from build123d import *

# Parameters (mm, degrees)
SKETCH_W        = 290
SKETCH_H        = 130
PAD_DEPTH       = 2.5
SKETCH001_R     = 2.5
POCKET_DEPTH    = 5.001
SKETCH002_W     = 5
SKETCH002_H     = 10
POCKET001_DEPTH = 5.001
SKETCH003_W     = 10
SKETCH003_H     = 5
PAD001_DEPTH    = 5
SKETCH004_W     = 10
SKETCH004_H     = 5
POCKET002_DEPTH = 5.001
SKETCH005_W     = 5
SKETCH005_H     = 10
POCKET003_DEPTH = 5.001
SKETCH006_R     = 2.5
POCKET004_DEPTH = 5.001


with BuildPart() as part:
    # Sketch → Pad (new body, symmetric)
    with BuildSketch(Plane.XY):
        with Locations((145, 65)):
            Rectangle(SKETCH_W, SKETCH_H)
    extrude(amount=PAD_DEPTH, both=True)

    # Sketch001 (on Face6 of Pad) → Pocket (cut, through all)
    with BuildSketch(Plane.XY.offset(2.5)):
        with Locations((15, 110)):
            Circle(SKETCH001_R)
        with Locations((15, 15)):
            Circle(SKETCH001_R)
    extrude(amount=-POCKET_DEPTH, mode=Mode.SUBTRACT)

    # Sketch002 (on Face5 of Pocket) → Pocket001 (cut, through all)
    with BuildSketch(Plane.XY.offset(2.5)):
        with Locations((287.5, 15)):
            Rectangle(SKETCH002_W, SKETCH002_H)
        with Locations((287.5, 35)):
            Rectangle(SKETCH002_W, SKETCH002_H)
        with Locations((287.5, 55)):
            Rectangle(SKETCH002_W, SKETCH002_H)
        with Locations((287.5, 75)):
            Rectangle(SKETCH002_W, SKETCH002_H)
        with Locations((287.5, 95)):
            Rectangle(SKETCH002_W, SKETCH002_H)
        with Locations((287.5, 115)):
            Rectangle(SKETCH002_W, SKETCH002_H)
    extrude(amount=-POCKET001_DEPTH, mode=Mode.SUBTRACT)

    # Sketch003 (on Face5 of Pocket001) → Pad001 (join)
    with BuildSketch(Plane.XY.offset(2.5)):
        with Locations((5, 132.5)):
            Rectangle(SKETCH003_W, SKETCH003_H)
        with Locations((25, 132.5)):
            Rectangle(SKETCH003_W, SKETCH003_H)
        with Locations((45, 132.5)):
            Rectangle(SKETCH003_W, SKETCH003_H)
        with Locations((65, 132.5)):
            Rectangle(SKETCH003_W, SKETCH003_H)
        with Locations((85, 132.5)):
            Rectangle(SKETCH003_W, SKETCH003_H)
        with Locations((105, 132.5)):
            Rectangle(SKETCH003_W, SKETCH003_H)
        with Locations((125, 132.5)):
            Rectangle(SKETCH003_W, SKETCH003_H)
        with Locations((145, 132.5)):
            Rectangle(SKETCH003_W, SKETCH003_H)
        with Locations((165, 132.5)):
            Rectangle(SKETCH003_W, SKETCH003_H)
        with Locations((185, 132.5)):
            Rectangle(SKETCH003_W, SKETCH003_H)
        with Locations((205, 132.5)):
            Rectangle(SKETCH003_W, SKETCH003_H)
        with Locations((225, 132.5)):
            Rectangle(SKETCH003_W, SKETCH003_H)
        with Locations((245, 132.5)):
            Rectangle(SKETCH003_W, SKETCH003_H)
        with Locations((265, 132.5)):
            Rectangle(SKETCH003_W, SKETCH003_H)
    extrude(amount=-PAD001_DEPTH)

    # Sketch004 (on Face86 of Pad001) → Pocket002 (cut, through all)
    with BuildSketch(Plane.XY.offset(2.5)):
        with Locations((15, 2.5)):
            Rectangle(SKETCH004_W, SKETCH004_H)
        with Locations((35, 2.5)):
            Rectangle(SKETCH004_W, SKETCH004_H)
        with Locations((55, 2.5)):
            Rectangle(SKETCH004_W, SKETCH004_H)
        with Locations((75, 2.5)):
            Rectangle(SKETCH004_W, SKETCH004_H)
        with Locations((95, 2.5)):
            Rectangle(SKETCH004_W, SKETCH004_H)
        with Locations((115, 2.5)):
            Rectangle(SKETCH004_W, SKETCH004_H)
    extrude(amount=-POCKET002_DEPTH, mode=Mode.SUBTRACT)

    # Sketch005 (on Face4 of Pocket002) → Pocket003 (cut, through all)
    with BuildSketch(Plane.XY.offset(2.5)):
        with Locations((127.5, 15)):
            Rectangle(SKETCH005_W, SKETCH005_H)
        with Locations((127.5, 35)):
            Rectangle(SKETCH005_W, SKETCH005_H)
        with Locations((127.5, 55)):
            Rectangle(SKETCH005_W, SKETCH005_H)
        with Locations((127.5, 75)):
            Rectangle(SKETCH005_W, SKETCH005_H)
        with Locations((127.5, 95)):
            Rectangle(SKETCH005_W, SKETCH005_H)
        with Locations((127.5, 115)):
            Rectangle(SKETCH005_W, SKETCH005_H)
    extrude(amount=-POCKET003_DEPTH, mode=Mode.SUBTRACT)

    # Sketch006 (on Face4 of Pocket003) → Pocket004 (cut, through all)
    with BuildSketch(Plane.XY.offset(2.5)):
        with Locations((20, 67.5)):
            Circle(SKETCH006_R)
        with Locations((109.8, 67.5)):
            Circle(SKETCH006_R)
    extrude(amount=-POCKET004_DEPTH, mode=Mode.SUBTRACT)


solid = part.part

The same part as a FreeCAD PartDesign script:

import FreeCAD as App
import Part
import Sketcher
from FreeCAD import Vector
Q = App.Units.Quantity


def add_polygon(sketch, points):
    """Adds a closed chain of lines whose ends are joined by coincident constraints."""
    first, n = sketch.GeometryCount, len(points)
    for a, b in zip(points, points[1:] + points[:1]):
        sketch.addGeometry(Part.LineSegment(App.Vector(*a, 0), App.Vector(*b, 0)), False)
    for i in range(n):
        sketch.addConstraint(Sketcher.Constraint("Coincident", first + i, 2, first + (i + 1) % n, 1))

doc = App.newDocument("Part")
body = doc.addObject("PartDesign::Body", "Body")

sketch1 = body.newObject("Sketcher::SketchObject", "Sketch")
sketch1.AttachmentSupport = (doc.getObject("XY_Plane"), [""])
sketch1.MapMode = "FlatFace"
add_polygon(sketch1, [(0, 130), (0, 0), (290, 0), (290, 130)])
sketch1.addConstraint([
    Sketcher.Constraint("Vertical", 0),
    Sketcher.Constraint("Horizontal", 1),
    Sketcher.Constraint("Vertical", 2),
    Sketcher.Constraint("Horizontal", 3),
    Sketcher.Constraint("Coincident", 0, 2, -1, 1),
    Sketcher.Constraint("DistanceX", 1, 1, 1, 2, Q("290 mm")),
    Sketcher.Constraint("DistanceY", 0, 2, 0, 1, Q("130 mm")),
])
pad1 = body.newObject("PartDesign::Pad", "Pad")
pad1.Profile = sketch1
pad1.Length = 5
pad1.Midplane = True

sketch2 = body.newObject("Sketcher::SketchObject", "Sketch001")
sketch2.AttachmentSupport = (doc.getObject("XY_Plane"), [""])
sketch2.MapMode = "FlatFace"
sketch2.AttachmentOffset = App.Placement(Vector(0, 0, 2.5), App.Rotation())
sketch2.addGeometry([
    Part.Circle(Vector(15, 110, 0), Vector(0, 0, 1), 2.5),
    Part.Circle(Vector(15, 15, 0), Vector(0, 0, 1), 2.5),
], False)
sketch2.addConstraint([
    Sketcher.Constraint("Equal", 0, 1),
    Sketcher.Constraint("Vertical", 0, 3, 1, 3),
    Sketcher.Constraint("Diameter", 0, Q("5 mm")),
    Sketcher.Constraint("DistanceX", -1, 1, 0, 3, Q("15 mm")),
    Sketcher.Constraint("DistanceY", -1, 1, 0, 3, Q("110 mm")),
    Sketcher.Constraint("DistanceY", -1, 1, 1, 3, Q("15 mm")),
])
pocket1 = body.newObject("PartDesign::Pocket", "Pocket")
pocket1.Profile = sketch2
pocket1.Type = "ThroughAll"

sketch3 = body.newObject("Sketcher::SketchObject", "Sketch002")
sketch3.AttachmentSupport = (doc.getObject("XY_Plane"), [""])
sketch3.MapMode = "FlatFace"
sketch3.AttachmentOffset = App.Placement(Vector(0, 0, 2.5), App.Rotation())
add_polygon(sketch3, [(285, 20), (285, 10), (290, 10), (290, 20)])
add_polygon(sketch3, [(285, 40), (285, 30), (290, 30), (290, 40)])
add_polygon(sketch3, [(285, 60), (285, 50), (290, 50), (290, 60)])
add_polygon(sketch3, [(285, 80), (285, 70), (290, 70), (290, 80)])
add_polygon(sketch3, [(285, 100), (285, 90), (290, 90), (290, 100)])
add_polygon(sketch3, [(285, 120), (285, 110), (290, 110), (290, 120)])
sketch3.addConstraint([
    Sketcher.Constraint("Vertical", 0),
    Sketcher.Constraint("Horizontal", 1),
    Sketcher.Constraint("Vertical", 2),
    Sketcher.Constraint("Horizontal", 3),
    Sketcher.Constraint("Vertical", 4),
    Sketcher.Constraint("Horizontal", 5),
    Sketcher.Constraint("Vertical", 6),
    Sketcher.Constraint("Horizontal", 7),
    Sketcher.Constraint("Vertical", 8),
    Sketcher.Constraint("Horizontal", 9),
    Sketcher.Constraint("Vertical", 10),
    Sketcher.Constraint("Horizontal", 11),
    Sketcher.Constraint("Vertical", 12),
    Sketcher.Constraint("Horizontal", 13),
    Sketcher.Constraint("Vertical", 14),
    Sketcher.Constraint("Horizontal", 15),
    Sketcher.Constraint("Vertical", 16),
    Sketcher.Constraint("Horizontal", 17),
    Sketcher.Constraint("Vertical", 18),
    Sketcher.Constraint("Horizontal", 19),
    Sketcher.Constraint("Vertical", 20),
    Sketcher.Constraint("Horizontal", 21),
    Sketcher.Constraint("Vertical", 22),
    Sketcher.Constraint("Horizontal", 23),
    Sketcher.Constraint("Vertical", 3, 2, 4, 2),
    Sketcher.Constraint("Vertical", 2, 2, 5, 2),
    Sketcher.Constraint("Vertical", 7, 2, 8, 2),
    Sketcher.Constraint("Vertical", 6, 2, 9, 2),
    Sketcher.Constraint("Vertical", 11, 2, 12, 2),
    Sketcher.Constraint("Vertical", 10, 2, 13, 2),
    Sketcher.Constraint("Vertical", 15, 2, 16, 2),
    Sketcher.Constraint("Vertical", 14, 2, 17, 2),
    Sketcher.Constraint("Vertical", 19, 2, 20, 2),
    Sketcher.Constraint("Vertical", 18, 2, 21, 2),
    Sketcher.Constraint("Equal", 2, 4),
    Sketcher.Constraint("Equal", 6, 8),
    Sketcher.Constraint("Equal", 10, 12),
    Sketcher.Constraint("Equal", 14, 16),
    Sketcher.Constraint("Equal", 18, 20),
    Sketcher.Constraint("DistanceX", 1, 1, 1, 2, Q("5 mm")),
    Sketcher.Constraint("DistanceY", 0, 2, 0, 1, Q("10 mm")),
    Sketcher.Constraint("DistanceX", -1, 1, 0, 2, Q("285 mm")),
    Sketcher.Constraint("DistanceY", -1, 1, 0, 2, Q("10 mm")),
    Sketcher.Constraint("DistanceY", -1, 1, 4, 2, Q("30 mm")),
    Sketcher.Constraint("DistanceY", -1, 1, 8, 2, Q("50 mm")),
    Sketcher.Constraint("DistanceY", -1, 1, 12, 2, Q("70 mm")),
    Sketcher.Constraint("DistanceY", -1, 1, 16, 2, Q("90 mm")),
    Sketcher.Constraint("DistanceY", -1, 1, 20, 2, Q("110 mm")),
])
pocket2 = body.newObject("PartDesign::Pocket", "Pocket001")
pocket2.Profile = sketch3
pocket2.Type = "ThroughAll"

sketch4 = body.newObject("Sketcher::SketchObject", "Sketch003")
sketch4.AttachmentSupport = (doc.getObject("XY_Plane"), [""])
sketch4.MapMode = "FlatFace"
sketch4.AttachmentOffset = App.Placement(Vector(0, 0, 2.5), App.Rotation())
add_polygon(sketch4, [(0, 135), (0, 130), (10, 130), (10, 135)])
add_polygon(sketch4, [(20, 135), (20, 130), (30, 130), (30, 135)])
add_polygon(sketch4, [(40, 135), (40, 130), (50, 130), (50, 135)])
add_polygon(sketch4, [(60, 135), (60, 130), (70, 130), (70, 135)])
add_polygon(sketch4, [(80, 135), (80, 130), (90, 130), (90, 135)])
add_polygon(sketch4, [(100, 135), (100, 130), (110, 130), (110, 135)])
add_polygon(sketch4, [(120, 135), (120, 130), (130, 130), (130, 135)])
add_polygon(sketch4, [(140, 135), (140, 130), (150, 130), (150, 135)])
add_polygon(sketch4, [(160, 135), (160, 130), (170, 130), (170, 135)])
add_polygon(sketch4, [(180, 135), (180, 130), (190, 130), (190, 135)])
add_polygon(sketch4, [(200, 135), (200, 130), (210, 130), (210, 135)])
add_polygon(sketch4, [(220, 135), (220, 130), (230, 130), (230, 135)])
add_polygon(sketch4, [(240, 135), (240, 130), (250, 130), (250, 135)])
add_polygon(sketch4, [(260, 135), (260, 130), (270, 130), (270, 135)])
sketch4.addConstraint([
    Sketcher.Constraint("Vertical", 0),
    Sketcher.Constraint("Horizontal", 1),
    Sketcher.Constraint("Vertical", 2),
    Sketcher.Constraint("Horizontal", 3),
    Sketcher.Constraint("Vertical", 4),
    Sketcher.Constraint("Horizontal", 5),
    Sketcher.Constraint("Vertical", 6),
    Sketcher.Constraint("Horizontal", 7),
    Sketcher.Constraint("Vertical", 8),
    Sketcher.Constraint("Horizontal", 9),
    Sketcher.Constraint("Vertical", 10),
    Sketcher.Constraint("Horizontal", 11),
    Sketcher.Constraint("Vertical", 12),
    Sketcher.Constraint("Horizontal", 13),
    Sketcher.Constraint("Vertical", 14),
    Sketcher.Constraint("Horizontal", 15),
    Sketcher.Constraint("Vertical", 16),
    Sketcher.Constraint("Horizontal", 17),
    Sketcher.Constraint("Vertical", 18),
    Sketcher.Constraint("Horizontal", 19),
    Sketcher.Constraint("Vertical", 20),
    Sketcher.Constraint("Horizontal", 21),
    Sketcher.Constraint("Vertical", 22),
    Sketcher.Constraint("Horizontal", 23),
    Sketcher.Constraint("Vertical", 24),
    Sketcher.Constraint("Horizontal", 25),
    Sketcher.Constraint("Vertical", 26),
    Sketcher.Constraint("Horizontal", 27),
    Sketcher.Constraint("Vertical", 28),
    Sketcher.Constraint("Horizontal", 29),
    Sketcher.Constraint("Vertical", 30),
    Sketcher.Constraint("Horizontal", 31),
    Sketcher.Constraint("Vertical", 32),
    Sketcher.Constraint("Horizontal", 33),
    Sketcher.Constraint("Vertical", 34),
    Sketcher.Constraint("Horizontal", 35),
    Sketcher.Constraint("Vertical", 36),
    Sketcher.Constraint("Horizontal", 37),
    Sketcher.Constraint("Vertical", 38),
    Sketcher.Constraint("Horizontal", 39),
    Sketcher.Constraint("Vertical", 40),
    Sketcher.Constraint("Horizontal", 41),
    Sketcher.Constraint("Vertical", 42),
    Sketcher.Constraint("Horizontal", 43),
    Sketcher.Constraint("Vertical", 44),
    Sketcher.Constraint("Horizontal", 45),
    Sketcher.Constraint("Vertical", 46),
    Sketcher.Constraint("Horizontal", 47),
    Sketcher.Constraint("Vertical", 48),
    Sketcher.Constraint("Horizontal", 49),
    Sketcher.Constraint("Vertical", 50),
    Sketcher.Constraint("Horizontal", 51),
    Sketcher.Constraint("Vertical", 52),
    Sketcher.Constraint("Horizontal", 53),
    Sketcher.Constraint("Vertical", 54),
    Sketcher.Constraint("Horizontal", 55),
    Sketcher.Constraint("PointOnObject", 0, 2, -2),
    Sketcher.Constraint("Horizontal", 1, 2, 4, 2),
    Sketcher.Constraint("Horizontal", 3, 2, 6, 2),
    Sketcher.Constraint("Horizontal", 5, 2, 8, 2),
    Sketcher.Constraint("Horizontal", 7, 2, 10, 2),
    Sketcher.Constraint("Horizontal", 9, 2, 12, 2),
    Sketcher.Constraint("Horizontal", 11, 2, 14, 2),
    Sketcher.Constraint("Horizontal", 13, 2, 16, 2),
    Sketcher.Constraint("Horizontal", 15, 2, 18, 2),
    Sketcher.Constraint("Horizontal", 17, 2, 20, 2),
    Sketcher.Constraint("Horizontal", 19, 2, 22, 2),
    Sketcher.Constraint("Horizontal", 21, 2, 24, 2),
    Sketcher.Constraint("Horizontal", 23, 2, 26, 2),
    Sketcher.Constraint("Horizontal", 25, 2, 28, 2),
    Sketcher.Constraint("Horizontal", 27, 2, 30, 2),
    Sketcher.Constraint("Horizontal", 29, 2, 32, 2),
    Sketcher.Constraint("Horizontal", 31, 2, 34, 2),
    Sketcher.Constraint("Horizontal", 33, 2, 36, 2),
    Sketcher.Constraint("Horizontal", 35, 2, 38, 2),
    Sketcher.Constraint("Horizontal", 37, 2, 40, 2),
    Sketcher.Constraint("Horizontal", 39, 2, 42, 2),
    Sketcher.Constraint("Horizontal", 41, 2, 44, 2),
    Sketcher.Constraint("Horizontal", 43, 2, 46, 2),
    Sketcher.Constraint("Horizontal", 45, 2, 48, 2),
    Sketcher.Constraint("Horizontal", 47, 2, 50, 2),
    Sketcher.Constraint("Horizontal", 49, 2, 52, 2),
    Sketcher.Constraint("Horizontal", 51, 2, 54, 2),
    Sketcher.Constraint("Equal", 3, 5),
    Sketcher.Constraint("Equal", 7, 9),
    Sketcher.Constraint("Equal", 11, 13),
    Sketcher.Constraint("Equal", 15, 17),
    Sketcher.Constraint("Equal", 19, 21),
    Sketcher.Constraint("Equal", 23, 25),
    Sketcher.Constraint("Equal", 27, 29),
    Sketcher.Constraint("Equal", 31, 33),
    Sketcher.Constraint("Equal", 35, 37),
    Sketcher.Constraint("Equal", 39, 41),
    Sketcher.Constraint("Equal", 43, 45),
    Sketcher.Constraint("Equal", 47, 49),
    Sketcher.Constraint("Equal", 51, 53),
    Sketcher.Constraint("DistanceX", 1, 1, 1, 2, Q("10 mm")),
    Sketcher.Constraint("DistanceY", 0, 2, 0, 1, Q("5 mm")),
    Sketcher.Constraint("DistanceY", -1, 1, 0, 2, Q("130 mm")),
    Sketcher.Constraint("DistanceX", -1, 1, 4, 2, Q("20 mm")),
    Sketcher.Constraint("DistanceX", -1, 1, 8, 2, Q("40 mm")),
    Sketcher.Constraint("DistanceX", -1, 1, 12, 2, Q("60 mm")),
    Sketcher.Constraint("DistanceX", -1, 1, 16, 2, Q("80 mm")),
    Sketcher.Constraint("DistanceX", -1, 1, 20, 2, Q("100 mm")),
    Sketcher.Constraint("DistanceX", -1, 1, 24, 2, Q("120 mm")),
    Sketcher.Constraint("DistanceX", -1, 1, 28, 2, Q("140 mm")),
    Sketcher.Constraint("DistanceX", -1, 1, 32, 2, Q("160 mm")),
    Sketcher.Constraint("DistanceX", -1, 1, 36, 2, Q("180 mm")),
    Sketcher.Constraint("DistanceX", -1, 1, 40, 2, Q("200 mm")),
    Sketcher.Constraint("DistanceX", -1, 1, 44, 2, Q("220 mm")),
    Sketcher.Constraint("DistanceX", -1, 1, 48, 2, Q("240 mm")),
    Sketcher.Constraint("DistanceX", -1, 1, 52, 2, Q("260 mm")),
])
pad2 = body.newObject("PartDesign::Pad", "Pad001")
pad2.Profile = sketch4
pad2.Length = 5
pad2.Reversed = True

sketch5 = body.newObject("Sketcher::SketchObject", "Sketch004")
sketch5.AttachmentSupport = (doc.getObject("XY_Plane"), [""])
sketch5.MapMode = "FlatFace"
sketch5.AttachmentOffset = App.Placement(Vector(0, 0, 2.5), App.Rotation())
add_polygon(sketch5, [(10, 5), (10, 0), (20, 0), (20, 5)])
add_polygon(sketch5, [(30, 5), (30, 0), (40, 0), (40, 5)])
add_polygon(sketch5, [(50, 5), (50, 0), (60, 0), (60, 5)])
add_polygon(sketch5, [(70, 5), (70, 0), (80, 0), (80, 5)])
add_polygon(sketch5, [(90, 5), (90, 0), (100, 0), (100, 5)])
add_polygon(sketch5, [(110, 5), (110, 0), (120, 0), (120, 5)])
sketch5.addConstraint([
    Sketcher.Constraint("Vertical", 0),
    Sketcher.Constraint("Horizontal", 1),
    Sketcher.Constraint("Vertical", 2),
    Sketcher.Constraint("Horizontal", 3),
    Sketcher.Constraint("Vertical", 4),
    Sketcher.Constraint("Horizontal", 5),
    Sketcher.Constraint("Vertical", 6),
    Sketcher.Constraint("Horizontal", 7),
    Sketcher.Constraint("Vertical", 8),
    Sketcher.Constraint("Horizontal", 9),
    Sketcher.Constraint("Vertical", 10),
    Sketcher.Constraint("Horizontal", 11),
    Sketcher.Constraint("Vertical", 12),
    Sketcher.Constraint("Horizontal", 13),
    Sketcher.Constraint("Vertical", 14),
    Sketcher.Constraint("Horizontal", 15),
    Sketcher.Constraint("Vertical", 16),
    Sketcher.Constraint("Horizontal", 17),
    Sketcher.Constraint("Vertical", 18),
    Sketcher.Constraint("Horizontal", 19),
    Sketcher.Constraint("Vertical", 20),
    Sketcher.Constraint("Horizontal", 21),
    Sketcher.Constraint("Vertical", 22),
    Sketcher.Constraint("Horizontal", 23),
    Sketcher.Constraint("PointOnObject", 0, 2, -1),
    Sketcher.Constraint("PointOnObject", 4, 2, -1),
    Sketcher.Constraint("PointOnObject", 8, 2, -1),
    Sketcher.Constraint("PointOnObject", 12, 2, -1),
    Sketcher.Constraint("PointOnObject", 16, 2, -1),
    Sketcher.Constraint("PointOnObject", 20, 2, -1),
    Sketcher.Constraint("Horizontal", 3, 2, 6, 2),
    Sketcher.Constraint("Horizontal", 7, 2, 10, 2),
    Sketcher.Constraint("Horizontal", 11, 2, 14, 2),
    Sketcher.Constraint("Horizontal", 15, 2, 18, 2),
    Sketcher.Constraint("Horizontal", 19, 2, 22, 2),
    Sketcher.Constraint("Equal", 3, 5),
    Sketcher.Constraint("Equal", 7, 9),
    Sketcher.Constraint("Equal", 11, 13),
    Sketcher.Constraint("Equal", 15, 17),
    Sketcher.Constraint("Equal", 19, 21),
    Sketcher.Constraint("DistanceX", 1, 1, 1, 2, Q("10 mm")),
    Sketcher.Constraint("DistanceY", 0, 2, 0, 1, Q("5 mm")),
    Sketcher.Constraint("DistanceX", -1, 1, 0, 2, Q("10 mm")),
    Sketcher.Constraint("DistanceX", -1, 1, 4, 2, Q("30 mm")),
    Sketcher.Constraint("DistanceX", -1, 1, 8, 2, Q("50 mm")),
    Sketcher.Constraint("DistanceX", -1, 1, 12, 2, Q("70 mm")),
    Sketcher.Constraint("DistanceX", -1, 1, 16, 2, Q("90 mm")),
    Sketcher.Constraint("DistanceX", -1, 1, 20, 2, Q("110 mm")),
])
pocket3 = body.newObject("PartDesign::Pocket", "Pocket002")
pocket3.Profile = sketch5
pocket3.Type = "ThroughAll"

sketch6 = body.newObject("Sketcher::SketchObject", "Sketch005")
sketch6.AttachmentSupport = (doc.getObject("XY_Plane"), [""])
sketch6.MapMode = "FlatFace"
sketch6.AttachmentOffset = App.Placement(Vector(0, 0, 2.5), App.Rotation())
add_polygon(sketch6, [(125, 20), (125, 10), (130, 10), (130, 20)])
add_polygon(sketch6, [(125, 40), (125, 30), (130, 30), (130, 40)])
add_polygon(sketch6, [(125, 60), (125, 50), (130, 50), (130, 60)])
add_polygon(sketch6, [(125, 80), (125, 70), (130, 70), (130, 80)])
add_polygon(sketch6, [(125, 100), (125, 90), (130, 90), (130, 100)])
add_polygon(sketch6, [(125, 120), (125, 110), (130, 110), (130, 120)])
sketch6.addConstraint([
    Sketcher.Constraint("Vertical", 0),
    Sketcher.Constraint("Horizontal", 1),
    Sketcher.Constraint("Vertical", 2),
    Sketcher.Constraint("Horizontal", 3),
    Sketcher.Constraint("Vertical", 4),
    Sketcher.Constraint("Horizontal", 5),
    Sketcher.Constraint("Vertical", 6),
    Sketcher.Constraint("Horizontal", 7),
    Sketcher.Constraint("Vertical", 8),
    Sketcher.Constraint("Horizontal", 9),
    Sketcher.Constraint("Vertical", 10),
    Sketcher.Constraint("Horizontal", 11),
    Sketcher.Constraint("Vertical", 12),
    Sketcher.Constraint("Horizontal", 13),
    Sketcher.Constraint("Vertical", 14),
    Sketcher.Constraint("Horizontal", 15),
    Sketcher.Constraint("Vertical", 16),
    Sketcher.Constraint("Horizontal", 17),
    Sketcher.Constraint("Vertical", 18),
    Sketcher.Constraint("Horizontal", 19),
    Sketcher.Constraint("Vertical", 20),
    Sketcher.Constraint("Horizontal", 21),
    Sketcher.Constraint("Vertical", 22),
    Sketcher.Constraint("Horizontal", 23),
    Sketcher.Constraint("Vertical", 3, 2, 4, 2),
    Sketcher.Constraint("Vertical", 2, 2, 5, 2),
    Sketcher.Constraint("Vertical", 7, 2, 8, 2),
    Sketcher.Constraint("Vertical", 6, 2, 9, 2),
    Sketcher.Constraint("Vertical", 11, 2, 12, 2),
    Sketcher.Constraint("Vertical", 10, 2, 13, 2),
    Sketcher.Constraint("Vertical", 15, 2, 16, 2),
    Sketcher.Constraint("Vertical", 14, 2, 17, 2),
    Sketcher.Constraint("Vertical", 19, 2, 20, 2),
    Sketcher.Constraint("Vertical", 18, 2, 21, 2),
    Sketcher.Constraint("Equal", 2, 4),
    Sketcher.Constraint("Equal", 6, 8),
    Sketcher.Constraint("Equal", 10, 12),
    Sketcher.Constraint("Equal", 14, 16),
    Sketcher.Constraint("Equal", 18, 20),
    Sketcher.Constraint("DistanceX", 1, 1, 1, 2, Q("5 mm")),
    Sketcher.Constraint("DistanceY", 0, 2, 0, 1, Q("10 mm")),
    Sketcher.Constraint("DistanceX", -1, 1, 0, 2, Q("125 mm")),
    Sketcher.Constraint("DistanceY", -1, 1, 0, 2, Q("10 mm")),
    Sketcher.Constraint("DistanceY", -1, 1, 4, 2, Q("30 mm")),
    Sketcher.Constraint("DistanceY", -1, 1, 8, 2, Q("50 mm")),
    Sketcher.Constraint("DistanceY", -1, 1, 12, 2, Q("70 mm")),
    Sketcher.Constraint("DistanceY", -1, 1, 16, 2, Q("90 mm")),
    Sketcher.Constraint("DistanceY", -1, 1, 20, 2, Q("110 mm")),
])
pocket4 = body.newObject("PartDesign::Pocket", "Pocket003")
pocket4.Profile = sketch6
pocket4.Type = "ThroughAll"

sketch7 = body.newObject("Sketcher::SketchObject", "Sketch006")
sketch7.AttachmentSupport = (doc.getObject("XY_Plane"), [""])
sketch7.MapMode = "FlatFace"
sketch7.AttachmentOffset = App.Placement(Vector(0, 0, 2.5), App.Rotation())
sketch7.addGeometry([
    Part.Circle(Vector(20, 67.5, 0), Vector(0, 0, 1), 2.5),
    Part.Circle(Vector(109.8, 67.5, 0), Vector(0, 0, 1), 2.5),
], False)
sketch7.addConstraint([
    Sketcher.Constraint("Equal", 0, 1),
    Sketcher.Constraint("Horizontal", 0, 3, 1, 3),
    Sketcher.Constraint("Diameter", 0, Q("5 mm")),
    Sketcher.Constraint("DistanceX", -1, 1, 0, 3, Q("20 mm")),
    Sketcher.Constraint("DistanceY", -1, 1, 0, 3, Q("67.5 mm")),
    Sketcher.Constraint("DistanceX", -1, 1, 1, 3, Q("109.8 mm")),
])
pocket5 = body.newObject("PartDesign::Pocket", "Pocket004")
pocket5.Profile = sketch7
pocket5.Type = "ThroughAll"

doc.recompute()
